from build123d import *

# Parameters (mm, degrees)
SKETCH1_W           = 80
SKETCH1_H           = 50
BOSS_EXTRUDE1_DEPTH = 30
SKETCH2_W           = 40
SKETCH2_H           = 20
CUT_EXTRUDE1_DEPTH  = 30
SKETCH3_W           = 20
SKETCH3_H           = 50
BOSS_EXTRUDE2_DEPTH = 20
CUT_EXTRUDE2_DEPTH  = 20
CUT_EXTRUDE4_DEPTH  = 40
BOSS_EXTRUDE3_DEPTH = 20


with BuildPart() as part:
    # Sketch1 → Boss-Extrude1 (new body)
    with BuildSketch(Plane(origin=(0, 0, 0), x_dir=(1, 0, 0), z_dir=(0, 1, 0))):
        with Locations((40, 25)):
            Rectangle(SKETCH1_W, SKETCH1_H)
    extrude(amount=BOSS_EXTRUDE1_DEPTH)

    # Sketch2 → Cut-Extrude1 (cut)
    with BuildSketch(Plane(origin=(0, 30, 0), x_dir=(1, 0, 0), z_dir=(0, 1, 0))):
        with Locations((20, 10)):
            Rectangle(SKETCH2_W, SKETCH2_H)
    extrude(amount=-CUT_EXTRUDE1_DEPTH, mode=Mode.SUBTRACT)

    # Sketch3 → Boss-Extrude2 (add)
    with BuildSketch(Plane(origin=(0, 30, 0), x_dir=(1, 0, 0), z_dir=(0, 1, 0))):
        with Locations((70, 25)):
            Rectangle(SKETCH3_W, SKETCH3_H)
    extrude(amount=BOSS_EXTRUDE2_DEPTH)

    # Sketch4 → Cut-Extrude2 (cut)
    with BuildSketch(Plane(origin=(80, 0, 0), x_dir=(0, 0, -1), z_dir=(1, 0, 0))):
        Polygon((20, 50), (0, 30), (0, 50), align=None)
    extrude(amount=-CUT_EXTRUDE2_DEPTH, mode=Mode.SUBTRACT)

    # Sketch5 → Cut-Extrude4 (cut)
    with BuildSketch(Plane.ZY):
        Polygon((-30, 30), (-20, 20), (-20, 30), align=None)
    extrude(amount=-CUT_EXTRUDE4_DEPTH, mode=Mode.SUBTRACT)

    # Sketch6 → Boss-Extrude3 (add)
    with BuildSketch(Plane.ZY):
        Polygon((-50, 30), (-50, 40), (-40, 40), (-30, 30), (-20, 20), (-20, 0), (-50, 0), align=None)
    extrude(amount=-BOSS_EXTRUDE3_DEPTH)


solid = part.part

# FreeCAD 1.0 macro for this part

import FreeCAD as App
import Part
import Sketcher
from FreeCAD import Vector


def add_polygon(sketch, points):
    """Adds a closed chain of lines whose ends are joined by coincident constraints."""
    first, n = sketch.GeometryCount, len(points)
    for a, b in zip(points, points[1:] + points[:1]):
        sketch.addGeometry(Part.LineSegment(App.Vector(*a, 0), App.Vector(*b, 0)), False)
    for i in range(n):
        sketch.addConstraint(Sketcher.Constraint("Coincident", first + i, 2, first + (i + 1) % n, 1))

doc = App.newDocument("Part")
body = doc.addObject("PartDesign::Body", "Body")

sketch1 = body.newObject("Sketcher::SketchObject", "Sketch")
sketch1.AttachmentSupport = (doc.getObject("XZ_Plane"), [""])
sketch1.MapMode = "FlatFace"
add_polygon(sketch1, [(0, -50), (0, 0), (80, 0), (80, -50)])
sketch1.addConstraint(Sketcher.Constraint("Vertical", 0))
sketch1.addConstraint(Sketcher.Constraint("Horizontal", 1))
sketch1.addConstraint(Sketcher.Constraint("Vertical", 2))
sketch1.addConstraint(Sketcher.Constraint("Horizontal", 3))
sketch1.addConstraint(Sketcher.Constraint("Coincident", 0, 2, -1, 1))
sketch1.addConstraint(Sketcher.Constraint("DistanceX", 1, 1, 1, 2, 80.0))
sketch1.addConstraint(Sketcher.Constraint("DistanceY", 0, 1, 0, 2, 50.0))
pad1 = body.newObject("PartDesign::Pad", "Pad")
pad1.Profile = sketch1
pad1.Length = 30
pad1.Reversed = True

sketch2 = body.newObject("Sketcher::SketchObject", "Sketch001")
sketch2.AttachmentSupport = (doc.getObject("XZ_Plane"), [""])
sketch2.MapMode = "FlatFace"
sketch2.AttachmentOffset = App.Placement(Vector(0, 0, -30), App.Rotation())
add_polygon(sketch2, [(0, -20), (0, 0), (40, 0), (40, -20)])
sketch2.addConstraint(Sketcher.Constraint("Vertical", 0))
sketch2.addConstraint(Sketcher.Constraint("Horizontal", 1))
sketch2.addConstraint(Sketcher.Constraint("Vertical", 2))
sketch2.addConstraint(Sketcher.Constraint("Horizontal", 3))
sketch2.addConstraint(Sketcher.Constraint("Coincident", 0, 2, -1, 1))
sketch2.addConstraint(Sketcher.Constraint("DistanceX", 1, 1, 1, 2, 40.0))
sketch2.addConstraint(Sketcher.Constraint("DistanceY", 0, 1, 0, 2, 20.0))
pocket1 = body.newObject("PartDesign::Pocket", "Pocket")
pocket1.Profile = sketch2
pocket1.Length = 30
pocket1.Reversed = True

sketch3 = body.newObject("Sketcher::SketchObject", "Sketch002")
sketch3.AttachmentSupport = (doc.getObject("XZ_Plane"), [""])
sketch3.MapMode = "FlatFace"
sketch3.AttachmentOffset = App.Placement(Vector(0, 0, -30), App.Rotation())
add_polygon(sketch3, [(60, -50), (60, 0), (80, 0), (80, -50)])
sketch3.addConstraint(Sketcher.Constraint("Vertical", 0))
sketch3.addConstraint(Sketcher.Constraint("Horizontal", 1))
sketch3.addConstraint(Sketcher.Constraint("Vertical", 2))
sketch3.addConstraint(Sketcher.Constraint("Horizontal", 3))
sketch3.addConstraint(Sketcher.Constraint("PointOnObject", 0, 2, -1))
sketch3.addConstraint(Sketcher.Constraint("DistanceX", 1, 1, 1, 2, 20.0))
sketch3.addConstraint(Sketcher.Constraint("DistanceY", 0, 1, 0, 2, 50.0))
sketch3.addConstraint(Sketcher.Constraint("DistanceX", -1, 1, 0, 2, 60.0))
pad2 = body.newObject("PartDesign::Pad", "Pad001")
pad2.Profile = sketch3
pad2.Length = 20
pad2.Reversed = True

sketch4 = body.newObject("Sketcher::SketchObject", "Sketch003")
sketch4.AttachmentSupport = (doc.getObject("YZ_Plane"), [""])
sketch4.MapMode = "FlatFace"
sketch4.AttachmentOffset = App.Placement(Vector(0, 0, 80), App.Rotation())
add_polygon(sketch4, [(30, 0), (50, -20), (50, 0)])
sketch4.addConstraint(Sketcher.Constraint("Vertical", 1))
sketch4.addConstraint(Sketcher.Constraint("Horizontal", 2))
sketch4.addConstraint(Sketcher.Constraint("PointOnObject", 1, 2, -1))
sketch4.addConstraint(Sketcher.Constraint("Equal", 2, 1))
sketch4.addConstraint(Sketcher.Constraint("DistanceX", 2, 2, 2, 1, 20.0))
sketch4.addConstraint(Sketcher.Constraint("DistanceX", -1, 1, 0, 2, 50.0))
pocket2 = body.newObject("PartDesign::Pocket", "Pocket001")
pocket2.Profile = sketch4
pocket2.Length = 20

sketch5 = body.newObject("Sketcher::SketchObject", "Sketch004")
sketch5.AttachmentSupport = (doc.getObject("YZ_Plane"), [""])
sketch5.MapMode = "FlatFace"
add_polygon(sketch5, [(30, -30), (20, -20), (30, -20)])
sketch5.addConstraint(Sketcher.Constraint("Horizontal", 1))
sketch5.addConstraint(Sketcher.Constraint("Vertical", 2))
sketch5.addConstraint(Sketcher.Constraint("Equal", 1, 2))
sketch5.addConstraint(Sketcher.Constraint("DistanceX", 1, 1, 1, 2, 10.0))
sketch5.addConstraint(Sketcher.Constraint("DistanceX", -1, 1, 0, 2, 20.0))
sketch5.addConstraint(Sketcher.Constraint("DistanceY", 0, 2, -1, 1, 20.0))
pocket3 = body.newObject("PartDesign::Pocket", "Pocket002")
pocket3.Profile = sketch5
pocket3.Length = 40
pocket3.Reversed = True

sketch6 = body.newObject("Sketcher::SketchObject", "Sketch005")
sketch6.AttachmentSupport = (doc.getObject("YZ_Plane"), [""])
sketch6.MapMode = "FlatFace"
add_polygon(sketch6, [(40, -50), (0, -50), (0, -20), (20, -20), (40, -40)])
sketch6.addConstraint(Sketcher.Constraint("Horizontal", 0))
sketch6.addConstraint(Sketcher.Constraint("Vertical", 1))
sketch6.addConstraint(Sketcher.Constraint("Horizontal", 2))
sketch6.addConstraint(Sketcher.Constraint("Vertical", 4))
sketch6.addConstraint(Sketcher.Constraint("PointOnObject", 0, 2, -2))
sketch6.addConstraint(Sketcher.Constraint("DistanceX", 0, 2, 0, 1, 40.0))
sketch6.addConstraint(Sketcher.Constraint("DistanceX", 2, 1, 2, 2, 20.0))
sketch6.addConstraint(Sketcher.Constraint("DistanceY", 1, 1, 1, 2, 30.0))
sketch6.addConstraint(Sketcher.Constraint("DistanceY", 4, 2, 4, 1, 10.0))
sketch6.addConstraint(Sketcher.Constraint("DistanceY", 0, 2, -1, 1, 50.0))
pad3 = body.newObject("PartDesign::Pad", "Pad002")
pad3.Profile = sketch6
pad3.Length = 20

doc.recompute()
